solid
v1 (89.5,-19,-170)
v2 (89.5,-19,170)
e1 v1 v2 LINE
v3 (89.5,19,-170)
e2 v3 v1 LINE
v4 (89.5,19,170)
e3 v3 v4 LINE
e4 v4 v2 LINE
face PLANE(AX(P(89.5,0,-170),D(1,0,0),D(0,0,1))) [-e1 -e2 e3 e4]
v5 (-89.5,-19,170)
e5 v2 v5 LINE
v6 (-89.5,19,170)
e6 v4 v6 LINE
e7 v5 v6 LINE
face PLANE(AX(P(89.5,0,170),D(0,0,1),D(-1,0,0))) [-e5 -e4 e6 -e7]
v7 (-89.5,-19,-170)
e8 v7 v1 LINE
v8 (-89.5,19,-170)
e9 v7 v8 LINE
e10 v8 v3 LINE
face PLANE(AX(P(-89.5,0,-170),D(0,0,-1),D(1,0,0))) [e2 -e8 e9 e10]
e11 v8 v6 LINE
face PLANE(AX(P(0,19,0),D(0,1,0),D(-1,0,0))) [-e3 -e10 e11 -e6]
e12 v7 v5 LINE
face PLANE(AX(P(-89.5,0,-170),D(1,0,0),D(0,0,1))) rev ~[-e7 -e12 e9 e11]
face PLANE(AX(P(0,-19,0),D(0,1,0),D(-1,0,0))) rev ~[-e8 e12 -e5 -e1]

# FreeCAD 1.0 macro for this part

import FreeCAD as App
import Part
import Sketcher

V = App.Vector
Q = App.Units.Quantity


def add_polygon(sketch, points):
    """Adds a closed chain of lines whose ends are joined by coincident constraints."""
    first, n = sketch.GeometryCount, len(points)
    for a, b in zip(points, points[1:] + points[:1]):
        sketch.addGeometry(Part.LineSegment(App.Vector(*a, 0), App.Vector(*b, 0)), False)
    for i in range(n):
        sketch.addConstraint(Sketcher.Constraint("Coincident", first + i, 2, first + (i + 1) % n, 1))

doc = App.newDocument("Part")
body = doc.addObject("PartDesign::Body", "Body")

# Sketch on XZ plane
sketch1 = body.newObject("Sketcher::SketchObject", "Sketch")
sketch1.AttachmentSupport = (doc.getObject("XZ_Plane"), [""])
sketch1.MapMode = "FlatFace"
add_polygon(sketch1, [(90, -170), (-90, -170), (-90, 170), (90, 170)])  # lines 0-3
sketch1.addConstraint([
    Sketcher.Constraint("Horizontal", 0),
    Sketcher.Constraint("Vertical", 1),
    Sketcher.Constraint("Horizontal", 2),
    Sketcher.Constraint("Vertical", 3),
    Sketcher.Constraint("Symmetric", 0, 2, 2, 2, -1, 1),
    Sketcher.Constraint("DistanceX", 0, 2, 0, 1, Q("179 mm")),
    Sketcher.Constraint("DistanceY", 1, 1, 1, 2, Q("340 mm")),
])
pad1 = body.newObject("PartDesign::Pad", "Pad")
pad1.Profile = sketch1
pad1.Length = 38
pad1.Midplane = True

doc.recompute()
